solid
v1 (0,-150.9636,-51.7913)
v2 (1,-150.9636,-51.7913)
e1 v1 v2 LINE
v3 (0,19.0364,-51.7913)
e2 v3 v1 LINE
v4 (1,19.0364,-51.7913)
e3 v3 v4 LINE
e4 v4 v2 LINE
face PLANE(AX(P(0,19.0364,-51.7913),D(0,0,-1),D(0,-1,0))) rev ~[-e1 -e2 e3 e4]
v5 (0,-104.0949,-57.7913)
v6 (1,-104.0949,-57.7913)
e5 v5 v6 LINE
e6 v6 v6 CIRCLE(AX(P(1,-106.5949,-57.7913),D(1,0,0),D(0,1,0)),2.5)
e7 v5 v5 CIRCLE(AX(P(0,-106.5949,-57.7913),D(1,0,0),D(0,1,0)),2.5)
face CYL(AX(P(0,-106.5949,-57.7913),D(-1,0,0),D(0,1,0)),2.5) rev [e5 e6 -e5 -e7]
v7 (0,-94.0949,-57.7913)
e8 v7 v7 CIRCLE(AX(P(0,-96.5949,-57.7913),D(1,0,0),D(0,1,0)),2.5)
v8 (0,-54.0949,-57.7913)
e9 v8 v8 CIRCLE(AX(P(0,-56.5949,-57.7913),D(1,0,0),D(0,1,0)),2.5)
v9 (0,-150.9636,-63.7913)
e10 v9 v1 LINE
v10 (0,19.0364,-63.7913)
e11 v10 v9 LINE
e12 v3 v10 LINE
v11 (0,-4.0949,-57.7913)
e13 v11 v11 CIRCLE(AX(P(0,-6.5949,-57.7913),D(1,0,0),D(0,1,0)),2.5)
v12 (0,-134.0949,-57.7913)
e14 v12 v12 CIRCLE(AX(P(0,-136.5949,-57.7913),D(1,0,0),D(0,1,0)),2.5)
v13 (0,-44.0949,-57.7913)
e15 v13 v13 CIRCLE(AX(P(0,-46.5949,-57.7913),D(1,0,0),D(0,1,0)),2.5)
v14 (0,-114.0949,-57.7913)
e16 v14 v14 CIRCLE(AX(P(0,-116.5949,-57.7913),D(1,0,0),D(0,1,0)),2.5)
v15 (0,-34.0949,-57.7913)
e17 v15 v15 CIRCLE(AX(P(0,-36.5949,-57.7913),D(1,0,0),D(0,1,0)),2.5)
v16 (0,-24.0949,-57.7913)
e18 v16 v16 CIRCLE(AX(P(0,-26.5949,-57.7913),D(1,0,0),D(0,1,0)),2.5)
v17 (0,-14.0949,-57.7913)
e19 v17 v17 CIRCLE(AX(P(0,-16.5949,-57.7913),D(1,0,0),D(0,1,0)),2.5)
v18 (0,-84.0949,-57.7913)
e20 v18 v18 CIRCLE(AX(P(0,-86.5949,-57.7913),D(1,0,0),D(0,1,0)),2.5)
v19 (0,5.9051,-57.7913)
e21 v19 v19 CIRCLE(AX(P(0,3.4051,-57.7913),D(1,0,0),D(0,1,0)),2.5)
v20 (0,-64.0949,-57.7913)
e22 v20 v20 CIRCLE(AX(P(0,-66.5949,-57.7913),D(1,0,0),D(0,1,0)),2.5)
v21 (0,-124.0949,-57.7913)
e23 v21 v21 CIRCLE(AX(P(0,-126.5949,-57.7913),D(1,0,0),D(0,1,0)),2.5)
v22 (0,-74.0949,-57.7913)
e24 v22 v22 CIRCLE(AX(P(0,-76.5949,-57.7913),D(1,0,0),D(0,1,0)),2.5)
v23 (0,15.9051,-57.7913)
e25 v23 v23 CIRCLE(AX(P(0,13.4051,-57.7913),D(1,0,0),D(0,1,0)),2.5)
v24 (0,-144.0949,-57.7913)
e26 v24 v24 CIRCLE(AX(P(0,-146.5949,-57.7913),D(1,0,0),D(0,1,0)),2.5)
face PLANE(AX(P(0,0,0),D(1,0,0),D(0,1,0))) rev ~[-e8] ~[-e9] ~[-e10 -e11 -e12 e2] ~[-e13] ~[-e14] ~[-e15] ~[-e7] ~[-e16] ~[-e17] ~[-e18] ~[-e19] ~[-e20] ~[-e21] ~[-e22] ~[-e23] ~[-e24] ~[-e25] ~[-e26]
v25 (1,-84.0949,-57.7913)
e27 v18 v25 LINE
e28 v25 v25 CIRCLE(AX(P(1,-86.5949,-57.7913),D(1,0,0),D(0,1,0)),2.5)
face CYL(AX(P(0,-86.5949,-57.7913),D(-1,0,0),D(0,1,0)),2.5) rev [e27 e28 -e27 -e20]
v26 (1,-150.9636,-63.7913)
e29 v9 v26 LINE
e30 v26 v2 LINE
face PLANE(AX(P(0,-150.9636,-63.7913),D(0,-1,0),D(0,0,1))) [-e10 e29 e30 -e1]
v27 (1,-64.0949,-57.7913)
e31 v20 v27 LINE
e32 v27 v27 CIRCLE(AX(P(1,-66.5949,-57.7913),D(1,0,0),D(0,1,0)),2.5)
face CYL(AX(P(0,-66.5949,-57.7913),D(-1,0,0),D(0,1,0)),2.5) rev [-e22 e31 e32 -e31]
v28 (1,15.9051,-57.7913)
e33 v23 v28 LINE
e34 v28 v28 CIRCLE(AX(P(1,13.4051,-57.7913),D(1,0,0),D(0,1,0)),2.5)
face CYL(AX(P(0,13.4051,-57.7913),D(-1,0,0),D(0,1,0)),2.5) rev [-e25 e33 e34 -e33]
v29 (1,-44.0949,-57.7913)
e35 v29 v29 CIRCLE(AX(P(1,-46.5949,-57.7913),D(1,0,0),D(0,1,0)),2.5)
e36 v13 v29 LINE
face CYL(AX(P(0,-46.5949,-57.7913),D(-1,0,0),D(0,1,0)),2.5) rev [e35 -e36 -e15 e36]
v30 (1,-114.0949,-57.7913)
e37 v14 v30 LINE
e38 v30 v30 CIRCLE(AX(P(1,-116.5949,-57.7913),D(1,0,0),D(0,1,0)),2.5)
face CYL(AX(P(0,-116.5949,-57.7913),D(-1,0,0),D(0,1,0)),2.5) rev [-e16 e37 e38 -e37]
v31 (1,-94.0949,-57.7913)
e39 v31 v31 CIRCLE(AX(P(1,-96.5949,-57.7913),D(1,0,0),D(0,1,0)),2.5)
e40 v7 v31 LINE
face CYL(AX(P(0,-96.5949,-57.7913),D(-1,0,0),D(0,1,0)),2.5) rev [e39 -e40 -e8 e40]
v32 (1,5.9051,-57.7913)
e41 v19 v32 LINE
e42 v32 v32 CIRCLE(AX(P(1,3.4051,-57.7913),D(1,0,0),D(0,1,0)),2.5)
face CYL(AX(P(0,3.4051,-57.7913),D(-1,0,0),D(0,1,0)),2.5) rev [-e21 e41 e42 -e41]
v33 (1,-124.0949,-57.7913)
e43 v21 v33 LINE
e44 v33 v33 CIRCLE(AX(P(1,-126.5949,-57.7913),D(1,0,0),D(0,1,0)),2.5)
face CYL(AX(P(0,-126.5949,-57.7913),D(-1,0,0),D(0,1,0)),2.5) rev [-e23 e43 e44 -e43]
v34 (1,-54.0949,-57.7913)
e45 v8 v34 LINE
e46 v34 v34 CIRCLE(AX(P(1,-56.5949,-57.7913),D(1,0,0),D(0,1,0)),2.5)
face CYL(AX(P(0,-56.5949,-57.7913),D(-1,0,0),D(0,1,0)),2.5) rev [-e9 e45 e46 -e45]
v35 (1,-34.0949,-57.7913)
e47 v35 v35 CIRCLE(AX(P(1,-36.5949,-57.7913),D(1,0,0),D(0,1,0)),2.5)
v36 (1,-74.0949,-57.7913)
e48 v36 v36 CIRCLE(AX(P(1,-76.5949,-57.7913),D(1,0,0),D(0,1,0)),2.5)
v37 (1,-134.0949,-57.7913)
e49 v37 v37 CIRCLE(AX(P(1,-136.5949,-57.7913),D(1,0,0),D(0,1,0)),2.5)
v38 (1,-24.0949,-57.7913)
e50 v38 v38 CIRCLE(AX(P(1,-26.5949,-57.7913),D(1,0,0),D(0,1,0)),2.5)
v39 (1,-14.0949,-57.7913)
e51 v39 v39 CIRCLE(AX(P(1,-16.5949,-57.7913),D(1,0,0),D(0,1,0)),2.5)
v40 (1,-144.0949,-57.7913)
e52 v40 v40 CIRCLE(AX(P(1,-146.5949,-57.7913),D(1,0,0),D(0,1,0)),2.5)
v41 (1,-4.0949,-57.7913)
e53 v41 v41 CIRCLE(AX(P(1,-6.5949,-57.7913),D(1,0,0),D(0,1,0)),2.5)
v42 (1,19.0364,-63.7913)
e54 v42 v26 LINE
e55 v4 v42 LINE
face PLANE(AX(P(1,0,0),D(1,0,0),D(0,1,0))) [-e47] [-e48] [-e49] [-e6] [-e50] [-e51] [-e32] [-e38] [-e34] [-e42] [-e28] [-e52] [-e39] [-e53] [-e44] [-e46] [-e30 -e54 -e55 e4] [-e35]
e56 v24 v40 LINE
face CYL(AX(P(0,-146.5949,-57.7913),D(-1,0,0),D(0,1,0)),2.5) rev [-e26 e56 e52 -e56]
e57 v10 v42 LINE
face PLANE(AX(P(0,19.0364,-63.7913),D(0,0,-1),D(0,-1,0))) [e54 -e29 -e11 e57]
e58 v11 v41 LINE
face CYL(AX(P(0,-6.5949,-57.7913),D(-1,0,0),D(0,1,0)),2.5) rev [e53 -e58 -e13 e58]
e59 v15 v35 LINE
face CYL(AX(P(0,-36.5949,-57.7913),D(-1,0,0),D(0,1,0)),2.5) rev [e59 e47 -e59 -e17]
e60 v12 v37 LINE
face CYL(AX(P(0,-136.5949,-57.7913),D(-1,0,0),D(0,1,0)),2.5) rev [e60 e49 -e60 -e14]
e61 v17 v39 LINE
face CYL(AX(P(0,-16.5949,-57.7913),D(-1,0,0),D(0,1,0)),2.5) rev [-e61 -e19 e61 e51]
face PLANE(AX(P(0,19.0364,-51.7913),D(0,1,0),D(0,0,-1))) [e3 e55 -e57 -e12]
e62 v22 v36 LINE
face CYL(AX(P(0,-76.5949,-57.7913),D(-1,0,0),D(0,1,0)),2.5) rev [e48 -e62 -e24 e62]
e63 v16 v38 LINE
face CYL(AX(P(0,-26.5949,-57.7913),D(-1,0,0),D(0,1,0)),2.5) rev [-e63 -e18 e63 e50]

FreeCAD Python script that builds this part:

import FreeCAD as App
import Part
import Sketcher

V = App.Vector

doc = App.newDocument("Part")
body = doc.addObject("PartDesign::Body", "Body")

# Sketch on YZ plane
sketch1 = doc.addObject("Sketcher::SketchObject", "Sketch")
body.addObject(sketch1)
sketch1.AttachmentSupport = (doc.YZ_Plane, [""])
sketch1.MapMode = "FlatFace"
sketch1.addGeometry(Part.LineSegment(V(-151, -63.8, 0), V(19, -63.8, 0)), False)
sketch1.addGeometry(Part.LineSegment(V(19, -63.8, 0), V(19, -51.8, 0)), False)
sketch1.addGeometry(Part.LineSegment(V(19, -51.8, 0), V(-151, -51.8, 0)), False)
sketch1.addGeometry(Part.LineSegment(V(-151, -51.8, 0), V(-151, -63.8, 0)), False)
sketch1.addGeometry(Part.Circle(V(-146.6, -57.8, 0), V(0, 0, 1), 2.5), False)
sketch1.addGeometry(Part.Circle(V(-136.6, -57.8, 0), V(0, 0, 1), 2.5), False)
sketch1.addGeometry(Part.Circle(V(-126.6, -57.8, 0), V(0, 0, 1), 2.5), False)
sketch1.addGeometry(Part.Circle(V(-116.6, -57.8, 0), V(0, 0, 1), 2.5), False)
sketch1.addGeometry(Part.Circle(V(-106.6, -57.8, 0), V(0, 0, 1), 2.5), False)
sketch1.addGeometry(Part.Circle(V(-96.6, -57.8, 0), V(0, 0, 1), 2.5), False)
sketch1.addGeometry(Part.Circle(V(-86.6, -57.8, 0), V(0, 0, 1), 2.5), False)
sketch1.addGeometry(Part.Circle(V(-76.6, -57.8, 0), V(0, 0, 1), 2.5), False)
sketch1.addGeometry(Part.Circle(V(-66.6, -57.8, 0), V(0, 0, 1), 2.5), False)
sketch1.addGeometry(Part.Circle(V(-56.6, -57.8, 0), V(0, 0, 1), 2.5), False)
sketch1.addGeometry(Part.Circle(V(-46.6, -57.8, 0), V(0, 0, 1), 2.5), False)
sketch1.addGeometry(Part.Circle(V(-36.6, -57.8, 0), V(0, 0, 1), 2.5), False)
sketch1.addGeometry(Part.Circle(V(-26.6, -57.8, 0), V(0, 0, 1), 2.5), False)
sketch1.addGeometry(Part.Circle(V(-16.6, -57.8, 0), V(0, 0, 1), 2.5), False)
sketch1.addGeometry(Part.Circle(V(-6.6, -57.8, 0), V(0, 0, 1), 2.5), False)
sketch1.addGeometry(Part.Circle(V(3.4, -57.8, 0), V(0, 0, 1), 2.5), False)
sketch1.addGeometry(Part.Circle(V(13.4, -57.8, 0), V(0, 0, 1), 2.5), False)
sketch1.addConstraint(Sketcher.Constraint("Coincident", 0, 2, 1, 1))
sketch1.addConstraint(Sketcher.Constraint("Coincident", 1, 2, 2, 1))
sketch1.addConstraint(Sketcher.Constraint("Coincident", 2, 2, 3, 1))
sketch1.addConstraint(Sketcher.Constraint("Coincident", 3, 2, 0, 1))
sketch1.addConstraint(Sketcher.Constraint("Horizontal", 0))
sketch1.addConstraint(Sketcher.Constraint("Vertical", 1))
sketch1.addConstraint(Sketcher.Constraint("Horizontal", 2))
sketch1.addConstraint(Sketcher.Constraint("Vertical", 3))
sketch1.addConstraint(Sketcher.Constraint("Equal", 4, 5))
sketch1.addConstraint(Sketcher.Constraint("Equal", 5, 6))
sketch1.addConstraint(Sketcher.Constraint("Equal", 6, 7))
sketch1.addConstraint(Sketcher.Constraint("Equal", 7, 8))
sketch1.addConstraint(Sketcher.Constraint("Equal", 8, 9))
sketch1.addConstraint(Sketcher.Constraint("Equal", 9, 10))
sketch1.addConstraint(Sketcher.Constraint("Equal", 10, 11))
sketch1.addConstraint(Sketcher.Constraint("Equal", 11, 12))
sketch1.addConstraint(Sketcher.Constraint("Equal", 12, 13))
sketch1.addConstraint(Sketcher.Constraint("Equal", 13, 14))
sketch1.addConstraint(Sketcher.Constraint("Equal", 14, 15))
sketch1.addConstraint(Sketcher.Constraint("Equal", 15, 16))
sketch1.addConstraint(Sketcher.Constraint("Equal", 16, 17))
sketch1.addConstraint(Sketcher.Constraint("Equal", 17, 18))
sketch1.addConstraint(Sketcher.Constraint("Equal", 18, 19))
sketch1.addConstraint(Sketcher.Constraint("Equal", 19, 20))
sketch1.addConstraint(Sketcher.Constraint("Horizontal", 4, 3, 5, 3))
sketch1.addConstraint(Sketcher.Constraint("Horizontal", 5, 3, 6, 3))
sketch1.addConstraint(Sketcher.Constraint("Horizontal", 6, 3, 7, 3))
sketch1.addConstraint(Sketcher.Constraint("Horizontal", 7, 3, 8, 3))
sketch1.addConstraint(Sketcher.Constraint("Horizontal", 8, 3, 9, 3))
sketch1.addConstraint(Sketcher.Constraint("Horizontal", 9, 3, 10, 3))
sketch1.addConstraint(Sketcher.Constraint("Horizontal", 10, 3, 11, 3))
sketch1.addConstraint(Sketcher.Constraint("Horizontal", 11, 3, 12, 3))
sketch1.addConstraint(Sketcher.Constraint("Horizontal", 12, 3, 13, 3))
sketch1.addConstraint(Sketcher.Constraint("Horizontal", 13, 3, 14, 3))
sketch1.addConstraint(Sketcher.Constraint("Horizontal", 14, 3, 15, 3))
sketch1.addConstraint(Sketcher.Constraint("Horizontal", 15, 3, 16, 3))
sketch1.addConstraint(Sketcher.Constraint("Horizontal", 16, 3, 17, 3))
sketch1.addConstraint(Sketcher.Constraint("Horizontal", 17, 3, 18, 3))
sketch1.addConstraint(Sketcher.Constraint("Horizontal", 18, 3, 19, 3))
sketch1.addConstraint(Sketcher.Constraint("Horizontal", 19, 3, 20, 3))
sketch1.addConstraint(Sketcher.Constraint("Diameter", 4, 5.0))
sketch1.addConstraint(Sketcher.Constraint("DistanceX", 0, 1, 0, 2, 170.0))
sketch1.addConstraint(Sketcher.Constraint("DistanceY", 1, 1, 1, 2, 12.0))
sketch1.addConstraint(Sketcher.Constraint("DistanceX", 4, 3, 5, 3, 10.0))
sketch1.addConstraint(Sketcher.Constraint("DistanceX", 5, 3, 6, 3, 10.0))
sketch1.addConstraint(Sketcher.Constraint("DistanceX", 6, 3, 7, 3, 10.0))
sketch1.addConstraint(Sketcher.Constraint("DistanceX", 7, 3, 8, 3, 10.0))
sketch1.addConstraint(Sketcher.Constraint("DistanceX", 8, 3, 9, 3, 10.0))
sketch1.addConstraint(Sketcher.Constraint("DistanceX", 9, 3, 10, 3, 10.0))
sketch1.addConstraint(Sketcher.Constraint("DistanceX", 10, 3, 11, 3, 10.0))
sketch1.addConstraint(Sketcher.Constraint("DistanceX", 11, 3, 12, 3, 10.0))
sketch1.addConstraint(Sketcher.Constraint("DistanceX", 12, 3, 13, 3, 10.0))
sketch1.addConstraint(Sketcher.Constraint("DistanceX", 13, 3, 14, 3, 10.0))
sketch1.addConstraint(Sketcher.Constraint("DistanceX", 14, 3, 15, 3, 10.0))
sketch1.addConstraint(Sketcher.Constraint("DistanceX", 15, 3, 16, 3, 10.0))
sketch1.addConstraint(Sketcher.Constraint("DistanceX", 16, 3, 17, 3, 10.0))
sketch1.addConstraint(Sketcher.Constraint("DistanceX", 17, 3, 18, 3, 10.0))
sketch1.addConstraint(Sketcher.Constraint("DistanceX", 18, 3, 19, 3, 10.0))
sketch1.addConstraint(Sketcher.Constraint("DistanceX", 19, 3, 20, 3, 10.0))
sketch1.addConstraint(Sketcher.Constraint("DistanceY", 0, 2, 20, 3, 6.0))
sketch1.addConstraint(Sketcher.Constraint("DistanceX", 4, 3, -1, 1, 146.595))
sketch1.addConstraint(Sketcher.Constraint("DistanceY", 4, 3, -1, 1, 57.7913))
sketch1.addConstraint(Sketcher.Constraint("DistanceX", -1, 1, 0, 2, 19.0364))
pad1 = doc.addObject("PartDesign::Pad", "Pad")
body.addObject(pad1)
pad1.Profile = sketch1
pad1.Length = 1

doc.recompute()
